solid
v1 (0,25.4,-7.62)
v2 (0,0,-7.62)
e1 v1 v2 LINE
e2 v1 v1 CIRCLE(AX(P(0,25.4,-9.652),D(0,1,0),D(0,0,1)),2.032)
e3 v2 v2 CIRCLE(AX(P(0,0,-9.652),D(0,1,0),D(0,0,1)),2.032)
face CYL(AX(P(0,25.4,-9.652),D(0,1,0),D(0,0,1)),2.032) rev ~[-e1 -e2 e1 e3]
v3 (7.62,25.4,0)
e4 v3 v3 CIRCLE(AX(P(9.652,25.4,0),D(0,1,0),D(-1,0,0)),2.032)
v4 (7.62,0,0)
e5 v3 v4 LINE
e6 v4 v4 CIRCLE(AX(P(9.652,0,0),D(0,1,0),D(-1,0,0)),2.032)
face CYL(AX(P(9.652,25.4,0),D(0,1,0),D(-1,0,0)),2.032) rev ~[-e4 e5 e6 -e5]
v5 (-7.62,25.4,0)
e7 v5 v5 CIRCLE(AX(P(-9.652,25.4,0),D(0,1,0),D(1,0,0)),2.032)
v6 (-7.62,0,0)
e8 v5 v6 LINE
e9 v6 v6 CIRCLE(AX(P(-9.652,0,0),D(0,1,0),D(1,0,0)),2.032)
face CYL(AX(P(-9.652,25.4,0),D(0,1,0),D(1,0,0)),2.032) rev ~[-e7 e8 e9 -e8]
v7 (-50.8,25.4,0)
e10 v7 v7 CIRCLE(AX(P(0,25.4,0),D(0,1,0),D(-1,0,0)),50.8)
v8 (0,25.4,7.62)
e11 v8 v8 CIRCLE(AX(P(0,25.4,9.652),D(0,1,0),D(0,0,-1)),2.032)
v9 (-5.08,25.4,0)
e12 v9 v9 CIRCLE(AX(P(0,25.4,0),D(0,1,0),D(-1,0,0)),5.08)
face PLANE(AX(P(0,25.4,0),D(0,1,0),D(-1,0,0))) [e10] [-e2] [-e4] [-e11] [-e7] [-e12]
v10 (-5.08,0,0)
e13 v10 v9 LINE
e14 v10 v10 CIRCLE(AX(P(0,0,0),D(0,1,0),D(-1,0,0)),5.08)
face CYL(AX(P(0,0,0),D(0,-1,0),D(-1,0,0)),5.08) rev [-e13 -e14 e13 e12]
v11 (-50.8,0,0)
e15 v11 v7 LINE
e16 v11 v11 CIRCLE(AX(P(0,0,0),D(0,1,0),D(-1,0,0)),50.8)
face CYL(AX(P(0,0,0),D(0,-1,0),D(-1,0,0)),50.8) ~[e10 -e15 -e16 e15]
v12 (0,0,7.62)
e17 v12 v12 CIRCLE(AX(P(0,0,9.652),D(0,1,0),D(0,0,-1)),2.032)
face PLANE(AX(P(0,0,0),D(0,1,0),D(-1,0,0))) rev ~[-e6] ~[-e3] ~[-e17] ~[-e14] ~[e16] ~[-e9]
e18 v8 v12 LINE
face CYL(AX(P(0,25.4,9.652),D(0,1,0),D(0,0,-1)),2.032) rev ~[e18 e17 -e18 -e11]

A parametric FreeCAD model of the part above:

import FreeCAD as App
import Part
import Sketcher
Q = App.Units.Quantity

doc = App.newDocument("Part")
body = doc.addObject("PartDesign::Body", "Body")

# Sketch on XZ plane
sketch1 = body.newObject("Sketcher::SketchObject", "Sketch")
sketch1.AttachmentSupport = (doc.getObject("XZ_Plane"), [""])
sketch1.MapMode = "FlatFace"
sketch1.addGeometry([
    Part.Circle(App.Vector(0, 0, 0), App.Vector(0, 0, 1), 50.8),
    Part.Circle(App.Vector(0, 0, 0), App.Vector(0, 0, 1), 5.08),
], False)
sketch1.addConstraint([
    Sketcher.Constraint("Coincident", 0, 3, -1, 1),
    Sketcher.Constraint("Coincident", 1, 3, -1, 1),
    Sketcher.Constraint("Diameter", 0, Q("4 in")),
    Sketcher.Constraint("Diameter", 1, Q("0.4 in")),
])
pad1 = body.newObject("PartDesign::Pad", "Pad")
pad1.Profile = sketch1
pad1.Length = Q("1 in")
pad1.Reversed = True

# Sketch on XZ plane
sketch2 = body.newObject("Sketcher::SketchObject", "Sketch001")
sketch2.AttachmentSupport = (doc.getObject("XZ_Plane"), [""])
sketch2.MapMode = "FlatFace"
sketch2.AttachmentOffset = App.Placement(App.Vector(0, 0, -1 * 25.4), App.Rotation())
sketch2.addGeometry(Part.Circle(App.Vector(-9.652, 0, 0), App.Vector(0, 0, 1), 2.032), False)
sketch2.addConstraint([
    Sketcher.Constraint("PointOnObject", 0, 3, -1),
    Sketcher.Constraint("Diameter", 0, Q("0.16 in")),
    Sketcher.Constraint("DistanceX", 0, 3, -1, 1, Q("0.38 in")),
])
pocket1 = body.newObject("PartDesign::Pocket", "Pocket")
pocket1.Profile = sketch2
pocket1.Length = Q("1 in")
pocket1.Reversed = True
doc.recompute()

polarpattern = body.newObject("PartDesign::PolarPattern", "PolarPattern")
polarpattern.Originals = [pocket1]
polarpattern.Axis = (doc.getObject("Y_Axis"), [""])
polarpattern.Angle = 360
polarpattern.Occurrences = 4
body.Tip = polarpattern

doc.recompute()
